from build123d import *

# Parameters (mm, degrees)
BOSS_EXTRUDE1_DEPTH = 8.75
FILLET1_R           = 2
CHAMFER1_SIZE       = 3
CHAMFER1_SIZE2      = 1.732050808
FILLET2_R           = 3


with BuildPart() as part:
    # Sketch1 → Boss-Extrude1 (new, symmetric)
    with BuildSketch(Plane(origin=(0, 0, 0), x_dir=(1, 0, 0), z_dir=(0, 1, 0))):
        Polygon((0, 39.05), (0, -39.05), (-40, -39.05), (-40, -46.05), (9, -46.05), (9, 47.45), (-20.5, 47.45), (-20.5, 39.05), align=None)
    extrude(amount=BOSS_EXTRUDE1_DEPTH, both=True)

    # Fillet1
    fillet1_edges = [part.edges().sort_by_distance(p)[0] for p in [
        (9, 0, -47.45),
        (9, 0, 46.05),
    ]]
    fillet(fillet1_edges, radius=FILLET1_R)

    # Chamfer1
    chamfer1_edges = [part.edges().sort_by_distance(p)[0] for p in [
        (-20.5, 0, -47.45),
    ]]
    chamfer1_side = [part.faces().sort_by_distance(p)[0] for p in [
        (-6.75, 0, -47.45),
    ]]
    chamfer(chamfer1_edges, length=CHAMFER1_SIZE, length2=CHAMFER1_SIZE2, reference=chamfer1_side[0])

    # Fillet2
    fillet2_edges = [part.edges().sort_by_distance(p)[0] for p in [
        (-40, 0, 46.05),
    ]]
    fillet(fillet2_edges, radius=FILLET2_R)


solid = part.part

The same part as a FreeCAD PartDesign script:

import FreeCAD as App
import Part
import Sketcher


def edges_at(feature, points):
    """Names of the edges that pass closest to the given points."""
    edges = feature.Shape.Edges
    near = lambda p: min(range(len(edges)), key=lambda i: edges[i].distToShape(Part.Vertex(*p))[0])
    return sorted({f"Edge{near(p) + 1}" for p in points})


def add_polygon(sketch, points):
    """Adds a closed chain of lines whose ends are joined by coincident constraints."""
    first, n = sketch.GeometryCount, len(points)
    for a, b in zip(points, points[1:] + points[:1]):
        sketch.addGeometry(Part.LineSegment(App.Vector(*a, 0), App.Vector(*b, 0)), False)
    for i in range(n):
        sketch.addConstraint(Sketcher.Constraint("Coincident", first + i, 2, first + (i + 1) % n, 1))

doc = App.newDocument("Part")
body = doc.addObject("PartDesign::Body", "Body")

sketch1 = doc.addObject("Sketcher::SketchObject", "Sketch")
body.addObject(sketch1)
sketch1.AttachmentSupport = (doc.XZ_Plane, [""])
sketch1.MapMode = "FlatFace"
add_polygon(sketch1, [(0, -39), (0, 39), (-40, 39), (-40, 46), (9, 46), (9, -47), (-20, -47), (-20, -39)])
sketch1.addConstraint(Sketcher.Constraint("Vertical", 0))
sketch1.addConstraint(Sketcher.Constraint("Horizontal", 1))
sketch1.addConstraint(Sketcher.Constraint("Vertical", 2))
sketch1.addConstraint(Sketcher.Constraint("Horizontal", 3))
sketch1.addConstraint(Sketcher.Constraint("Vertical", 4))
sketch1.addConstraint(Sketcher.Constraint("Horizontal", 5))
sketch1.addConstraint(Sketcher.Constraint("Vertical", 6))
sketch1.addConstraint(Sketcher.Constraint("Horizontal", 7))
sketch1.addConstraint(Sketcher.Constraint("Symmetric", 0, 2, 7, 2, -1, 1))
sketch1.addConstraint(Sketcher.Constraint("DistanceX", 1, 2, 1, 1, 40.0))
sketch1.addConstraint(Sketcher.Constraint("DistanceX", 3, 1, 3, 2, 49.0))
sketch1.addConstraint(Sketcher.Constraint("DistanceY", 2, 1, 2, 2, 7.0))
sketch1.addConstraint(Sketcher.Constraint("DistanceX", 5, 2, 5, 1, 29.5))
sketch1.addConstraint(Sketcher.Constraint("DistanceY", 0, 1, 0, 2, 78.1))
sketch1.addConstraint(Sketcher.Constraint("DistanceY", 4, 2, 4, 1, 93.5))
pad1 = doc.addObject("PartDesign::Pad", "Pad")
body.addObject(pad1)
pad1.Profile = sketch1
pad1.Length = 17.5
pad1.Midplane = True
doc.recompute()

fillet = doc.addObject("PartDesign::Fillet", "Fillet")
body.addObject(fillet)
fillet.Base = (pad1, edges_at(pad1, [(9, 0, -47.45), (9, 0, 46.05)]))
fillet.Radius = 2
doc.recompute()

chamfer = doc.addObject("PartDesign::Chamfer", "Chamfer")
body.addObject(chamfer)
chamfer.Base = (fillet, edges_at(fillet, [(-20.5, 0, -47.45)]))
chamfer.ChamferType = "Two distances"
chamfer.Size = 3
chamfer.Size2 = 1.732051
doc.recompute()

fillet2 = doc.addObject("PartDesign::Fillet", "Fillet001")
body.addObject(fillet2)
fillet2.Base = (chamfer, edges_at(chamfer, [(-40, 0, 46.05)]))
fillet2.Radius = 3

doc.recompute()
